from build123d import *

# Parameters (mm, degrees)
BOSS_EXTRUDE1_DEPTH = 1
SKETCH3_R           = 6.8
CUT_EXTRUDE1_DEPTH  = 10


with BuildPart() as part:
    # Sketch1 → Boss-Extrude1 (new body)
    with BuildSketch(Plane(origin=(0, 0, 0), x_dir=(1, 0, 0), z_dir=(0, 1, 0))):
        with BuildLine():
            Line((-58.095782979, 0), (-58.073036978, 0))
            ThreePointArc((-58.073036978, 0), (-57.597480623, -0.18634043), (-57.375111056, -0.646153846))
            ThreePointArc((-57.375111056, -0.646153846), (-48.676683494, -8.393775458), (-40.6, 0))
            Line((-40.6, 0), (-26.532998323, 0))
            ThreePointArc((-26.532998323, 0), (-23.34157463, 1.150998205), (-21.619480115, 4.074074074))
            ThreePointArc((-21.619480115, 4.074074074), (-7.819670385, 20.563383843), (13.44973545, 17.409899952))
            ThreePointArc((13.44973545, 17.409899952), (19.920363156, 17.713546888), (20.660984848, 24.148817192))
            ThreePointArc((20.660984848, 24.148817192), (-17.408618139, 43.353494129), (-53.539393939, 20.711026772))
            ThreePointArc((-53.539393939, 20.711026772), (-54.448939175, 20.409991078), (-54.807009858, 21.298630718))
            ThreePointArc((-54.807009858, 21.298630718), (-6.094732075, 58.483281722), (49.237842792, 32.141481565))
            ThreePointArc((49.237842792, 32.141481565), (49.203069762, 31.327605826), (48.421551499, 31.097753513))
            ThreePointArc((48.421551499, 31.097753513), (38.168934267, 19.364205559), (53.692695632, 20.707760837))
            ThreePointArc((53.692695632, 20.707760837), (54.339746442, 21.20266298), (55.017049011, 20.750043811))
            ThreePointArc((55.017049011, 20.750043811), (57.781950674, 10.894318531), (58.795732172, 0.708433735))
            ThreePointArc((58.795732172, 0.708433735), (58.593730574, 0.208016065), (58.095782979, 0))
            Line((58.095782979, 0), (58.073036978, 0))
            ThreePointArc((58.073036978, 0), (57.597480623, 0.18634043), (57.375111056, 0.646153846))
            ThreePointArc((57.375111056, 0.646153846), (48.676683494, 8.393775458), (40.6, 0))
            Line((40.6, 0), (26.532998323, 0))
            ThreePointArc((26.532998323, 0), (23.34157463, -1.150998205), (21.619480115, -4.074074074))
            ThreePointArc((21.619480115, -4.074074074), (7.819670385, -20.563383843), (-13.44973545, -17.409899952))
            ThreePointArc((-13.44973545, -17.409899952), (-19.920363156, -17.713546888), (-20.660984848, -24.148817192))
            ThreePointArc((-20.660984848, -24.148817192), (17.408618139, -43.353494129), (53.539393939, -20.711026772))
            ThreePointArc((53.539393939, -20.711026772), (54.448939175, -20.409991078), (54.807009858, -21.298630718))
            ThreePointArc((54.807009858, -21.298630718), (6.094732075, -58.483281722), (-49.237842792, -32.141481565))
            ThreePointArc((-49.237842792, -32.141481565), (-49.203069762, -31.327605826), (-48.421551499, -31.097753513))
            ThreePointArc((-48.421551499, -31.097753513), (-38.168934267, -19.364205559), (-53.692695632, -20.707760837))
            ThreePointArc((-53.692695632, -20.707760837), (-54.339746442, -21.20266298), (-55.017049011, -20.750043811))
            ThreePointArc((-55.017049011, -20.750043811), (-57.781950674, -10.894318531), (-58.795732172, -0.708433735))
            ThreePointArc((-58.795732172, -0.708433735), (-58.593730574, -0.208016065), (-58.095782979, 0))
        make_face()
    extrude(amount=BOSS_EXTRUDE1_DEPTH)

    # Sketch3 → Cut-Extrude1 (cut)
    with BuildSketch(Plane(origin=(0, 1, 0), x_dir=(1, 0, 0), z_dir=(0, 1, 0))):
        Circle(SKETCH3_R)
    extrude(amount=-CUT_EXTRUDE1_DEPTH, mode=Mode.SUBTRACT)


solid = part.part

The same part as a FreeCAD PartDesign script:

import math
import FreeCAD as App
import Part
import Sketcher
from FreeCAD import Vector

doc = App.newDocument("Part")
body = doc.addObject("PartDesign::Body", "Body")

# Sketch on XZ plane
sketch1 = body.newObject("Sketcher::SketchObject", "Sketch")
sketch1.AttachmentSupport = (doc.getObject("XZ_Plane"), [""])
sketch1.MapMode = "FlatFace"
sketch1.addGeometry([
    Part.LineSegment(Vector(-58.073, 0, 0), Vector(-58.096, 0, 0)),  # 0
    Part.ArcOfCircle(Part.Circle(Vector(-58.096, 0.7, 0), Vector(0, 0, 1), 0.7), math.radians(179), math.radians(270)),  # 1
    Part.ArcOfCircle(Part.Circle(Vector(0, 0, 0), Vector(0, 0, 1), 58.8), math.radians(159.34), math.radians(179.31)),  # 2
    Part.ArcOfCircle(Part.Circle(Vector(-54.362, 20.503, 0), Vector(0, 0, 1), 0.7), math.radians(17), math.radians(159)),  # 3
    Part.ArcOfCircle(Part.Circle(Vector(-45.66, 23.165, 0), Vector(0, 0, 1), 8.4), math.radians(-163), math.radians(109)),  # 4
    Part.ArcOfCircle(Part.Circle(Vector(-48.652, 31.759, 0), Vector(0, 0, 1), 0.7), math.radians(147), math.radians(289)),  # 5
    Part.ArcOfCircle(Part.Circle(Vector(0, 0, 0), Vector(0, 0, 1), 58.8), math.radians(21), math.radians(147)),  # 6
    Part.ArcOfCircle(Part.Circle(Vector(54.155, 21.045, 0), Vector(0, 0, 1), 0.7), math.radians(-151), math.radians(21)),  # 7
    Part.ArcOfCircle(Part.Circle(Vector(15.4, 0, 0), Vector(0, 0, 1), 43.4), math.radians(29), math.radians(146)),  # 8
    Part.ArcOfCircle(Part.Circle(Vector(-16.506, 21.367, 0), Vector(0, 0, 1), 5), math.radians(146), math.radians(308)),  # 9
    Part.ArcOfCircle(Part.Circle(Vector(0, 0, 0), Vector(0, 0, 1), 22), math.radians(11), math.radians(128)),  # 10
    Part.ArcOfCircle(Part.Circle(Vector(26.533, 5, 0), Vector(0, 0, 1), 5), math.radians(-169), math.radians(-90)),  # 11
    Part.LineSegment(Vector(26.533, 0, 0), Vector(40.6, 0, 0)),  # 12
    Part.ArcOfCircle(Part.Circle(Vector(49, 0, 0), Vector(0, 0, 1), 8.4), math.radians(180), math.radians(356)),  # 13
    Part.ArcOfCircle(Part.Circle(Vector(58.073, -0.7, 0), Vector(0, 0, 1), 0.7), math.radians(90), math.radians(176)),  # 14
    Part.LineSegment(Vector(58.073, 0, 0), Vector(58.096, 0, 0)),  # 15
    Part.ArcOfCircle(Part.Circle(Vector(58.096, -0.7, 0), Vector(0, 0, 1), 0.7), math.radians(-1), math.radians(90)),  # 16
    Part.ArcOfCircle(Part.Circle(Vector(0, 0, 0), Vector(0, 0, 1), 58.8), math.radians(-20.66), math.radians(-0.69)),  # 17
    Part.ArcOfCircle(Part.Circle(Vector(54.362, -20.503, 0), Vector(0, 0, 1), 0.7), math.radians(-163), math.radians(-21)),  # 18
    Part.ArcOfCircle(Part.Circle(Vector(45.66, -23.165, 0), Vector(0, 0, 1), 8.4), math.radians(17), math.radians(289)),  # 19
    Part.ArcOfCircle(Part.Circle(Vector(48.652, -31.759, 0), Vector(0, 0, 1), 0.7), math.radians(-33), math.radians(109)),  # 20
    Part.ArcOfCircle(Part.Circle(Vector(0, 0, 0), Vector(0, 0, 1), 58.8), math.radians(-159), math.radians(-33)),  # 21
    Part.ArcOfCircle(Part.Circle(Vector(-54.155, -21.045, 0), Vector(0, 0, 1), 0.7), math.radians(29), math.radians(201)),  # 22
    Part.ArcOfCircle(Part.Circle(Vector(-15.4, 0, 0), Vector(0, 0, 1), 43.4), math.radians(-151), math.radians(-34)),  # 23
    Part.ArcOfCircle(Part.Circle(Vector(16.506, -21.367, 0), Vector(0, 0, 1), 5), math.radians(-34), math.radians(128)),  # 24
    Part.ArcOfCircle(Part.Circle(Vector(0, 0, 0), Vector(0, 0, 1), 22), math.radians(-169), math.radians(-52)),  # 25
    Part.ArcOfCircle(Part.Circle(Vector(-26.533, -5, 0), Vector(0, 0, 1), 5), math.radians(11), math.radians(90)),  # 26
    Part.LineSegment(Vector(-26.533, 0, 0), Vector(-40.6, 0, 0)),  # 27
    Part.ArcOfCircle(Part.Circle(Vector(-49, 0, 0), Vector(0, 0, 1), 8.4), math.radians(0), math.radians(176)),  # 28
    Part.ArcOfCircle(Part.Circle(Vector(-58.073, 0.7, 0), Vector(0, 0, 1), 0.7), math.radians(-90), math.radians(-4)),  # 29
], False)
sketch1.addConstraint([
    Sketcher.Constraint("Tangent", 0, 2, 1, 2),
    Sketcher.Constraint("Tangent", 1, 1, 2, 2),
    Sketcher.Constraint("Tangent", 2, 1, 3, 2),
    Sketcher.Constraint("Tangent", 3, 1, 4, 1),
    Sketcher.Constraint("Tangent", 4, 2, 5, 2),
    Sketcher.Constraint("Tangent", 5, 1, 6, 2),
    Sketcher.Constraint("Tangent", 6, 1, 7, 2),
    Sketcher.Constraint("Tangent", 7, 1, 8, 1),
    Sketcher.Constraint("Tangent", 8, 2, 9, 1),
    Sketcher.Constraint("Tangent", 9, 2, 10, 2),
    Sketcher.Constraint("Tangent", 10, 1, 11, 1),
    Sketcher.Constraint("Tangent", 11, 2, 12, 1),
    Sketcher.Constraint("Coincident", 12, 2, 13, 1),
    Sketcher.Constraint("Tangent", 13, 2, 14, 2),
    Sketcher.Constraint("Tangent", 14, 1, 15, 1),
    Sketcher.Constraint("Tangent", 15, 2, 16, 2),
    Sketcher.Constraint("Tangent", 16, 1, 17, 2),
    Sketcher.Constraint("Tangent", 17, 1, 18, 2),
    Sketcher.Constraint("Tangent", 18, 1, 19, 1),
    Sketcher.Constraint("Tangent", 19, 2, 20, 2),
    Sketcher.Constraint("Tangent", 20, 1, 21, 2),
    Sketcher.Constraint("Tangent", 21, 1, 22, 2),
    Sketcher.Constraint("Tangent", 22, 1, 23, 1),
    Sketcher.Constraint("Tangent", 23, 2, 24, 1),
    Sketcher.Constraint("Tangent", 24, 2, 25, 2),
    Sketcher.Constraint("Tangent", 25, 1, 26, 1),
    Sketcher.Constraint("Tangent", 26, 2, 27, 1),
    Sketcher.Constraint("Coincident", 27, 2, 28, 1),
    Sketcher.Constraint("Tangent", 28, 2, 29, 2),
    Sketcher.Constraint("Tangent", 29, 1, 0, 1),
    Sketcher.Constraint("Horizontal", 0),
    Sketcher.Constraint("Horizontal", 12),
    Sketcher.Constraint("Horizontal", 15),
    Sketcher.Constraint("Horizontal", 27),
    Sketcher.Constraint("Coincident", 2, 3, -1, 1),
    Sketcher.Constraint("Coincident", 6, 3, -1, 1),
    Sketcher.Constraint("Coincident", 10, 3, -1, 1),
    Sketcher.Constraint("Coincident", 17, 3, -1, 1),
    Sketcher.Constraint("Coincident", 21, 3, -1, 1),
    Sketcher.Constraint("Coincident", 25, 3, -1, 1),
    Sketcher.Constraint("Equal", 1, 3),
    Sketcher.Constraint("Equal", 3, 5),
    Sketcher.Constraint("Equal", 2, 6),
    Sketcher.Constraint("Equal", 5, 7),
    Sketcher.Constraint("Equal", 9, 11),
    Sketcher.Constraint("Equal", 4, 13),
    Sketcher.Constraint("Equal", 7, 14),
    Sketcher.Constraint("Equal", 14, 16),
    Sketcher.Constraint("Equal", 6, 17),
    Sketcher.Constraint("Equal", 16, 18),
    Sketcher.Constraint("Equal", 13, 19),
    Sketcher.Constraint("Equal", 18, 20),
    Sketcher.Constraint("Equal", 17, 21),
    Sketcher.Constraint("Equal", 20, 22),
    Sketcher.Constraint("Equal", 8, 23),
    Sketcher.Constraint("Equal", 11, 24),
    Sketcher.Constraint("Equal", 10, 25),
    Sketcher.Constraint("Equal", 24, 26),
    Sketcher.Constraint("Equal", 19, 28),
    Sketcher.Constraint("Equal", 22, 29),
    Sketcher.Constraint("Symmetric", 4, 3, 19, 3, -1, 1),
    Sketcher.Constraint("Symmetric", 8, 3, 23, 3, -1, 1),
    Sketcher.Constraint("Symmetric", 13, 3, 28, 3, -1, 1),
    Sketcher.Constraint("Symmetric", 0, 2, 15, 2, -2),
    Sketcher.Constraint("Symmetric", 11, 2, 26, 2, -2),
    Sketcher.Constraint("PointOnObject", 8, 3, -1),
    Sketcher.Constraint("PointOnObject", 13, 3, -1),
    Sketcher.Constraint("Radius", 9, 5.0),
    Sketcher.Constraint("Radius", 10, 22.0),
    Sketcher.Constraint("Radius", 1, 0.7),
    Sketcher.Constraint("Radius", 2, 58.8),
    Sketcher.Constraint("Radius", 4, 8.4),
    Sketcher.Constraint("Radius", 8, 43.4),
    Sketcher.Constraint("DistanceX", -1, 1, 13, 3, 49.0),
    Sketcher.Constraint("DistanceX", -1, 1, 8, 3, 15.4),
    Sketcher.Constraint("DistanceX", 1, 3, 3, 3, 3.733699),
    Sketcher.Constraint("DistanceY", 2, 1, 5, 3, 11.008801),
])
pad1 = body.newObject("PartDesign::Pad", "Pad")
pad1.Profile = sketch1
pad1.Length = 1
pad1.Reversed = True

# Sketch on XZ plane
sketch2 = body.newObject("Sketcher::SketchObject", "Sketch001")
sketch2.AttachmentSupport = (doc.getObject("XZ_Plane"), [""])
sketch2.MapMode = "FlatFace"
sketch2.AttachmentOffset = App.Placement(Vector(0, 0, -1), App.Rotation())
sketch2.addGeometry(Part.Circle(Vector(0, 0, 0), Vector(0, 0, 1), 7), False)
sketch2.addConstraint([
    Sketcher.Constraint("Coincident", 0, 3, -1, 1),
    Sketcher.Constraint("Diameter", 0, 13.6),
])
pocket1 = body.newObject("PartDesign::Pocket", "Pocket")
pocket1.Profile = sketch2
pocket1.Length = 10
pocket1.Reversed = True

doc.recompute()
